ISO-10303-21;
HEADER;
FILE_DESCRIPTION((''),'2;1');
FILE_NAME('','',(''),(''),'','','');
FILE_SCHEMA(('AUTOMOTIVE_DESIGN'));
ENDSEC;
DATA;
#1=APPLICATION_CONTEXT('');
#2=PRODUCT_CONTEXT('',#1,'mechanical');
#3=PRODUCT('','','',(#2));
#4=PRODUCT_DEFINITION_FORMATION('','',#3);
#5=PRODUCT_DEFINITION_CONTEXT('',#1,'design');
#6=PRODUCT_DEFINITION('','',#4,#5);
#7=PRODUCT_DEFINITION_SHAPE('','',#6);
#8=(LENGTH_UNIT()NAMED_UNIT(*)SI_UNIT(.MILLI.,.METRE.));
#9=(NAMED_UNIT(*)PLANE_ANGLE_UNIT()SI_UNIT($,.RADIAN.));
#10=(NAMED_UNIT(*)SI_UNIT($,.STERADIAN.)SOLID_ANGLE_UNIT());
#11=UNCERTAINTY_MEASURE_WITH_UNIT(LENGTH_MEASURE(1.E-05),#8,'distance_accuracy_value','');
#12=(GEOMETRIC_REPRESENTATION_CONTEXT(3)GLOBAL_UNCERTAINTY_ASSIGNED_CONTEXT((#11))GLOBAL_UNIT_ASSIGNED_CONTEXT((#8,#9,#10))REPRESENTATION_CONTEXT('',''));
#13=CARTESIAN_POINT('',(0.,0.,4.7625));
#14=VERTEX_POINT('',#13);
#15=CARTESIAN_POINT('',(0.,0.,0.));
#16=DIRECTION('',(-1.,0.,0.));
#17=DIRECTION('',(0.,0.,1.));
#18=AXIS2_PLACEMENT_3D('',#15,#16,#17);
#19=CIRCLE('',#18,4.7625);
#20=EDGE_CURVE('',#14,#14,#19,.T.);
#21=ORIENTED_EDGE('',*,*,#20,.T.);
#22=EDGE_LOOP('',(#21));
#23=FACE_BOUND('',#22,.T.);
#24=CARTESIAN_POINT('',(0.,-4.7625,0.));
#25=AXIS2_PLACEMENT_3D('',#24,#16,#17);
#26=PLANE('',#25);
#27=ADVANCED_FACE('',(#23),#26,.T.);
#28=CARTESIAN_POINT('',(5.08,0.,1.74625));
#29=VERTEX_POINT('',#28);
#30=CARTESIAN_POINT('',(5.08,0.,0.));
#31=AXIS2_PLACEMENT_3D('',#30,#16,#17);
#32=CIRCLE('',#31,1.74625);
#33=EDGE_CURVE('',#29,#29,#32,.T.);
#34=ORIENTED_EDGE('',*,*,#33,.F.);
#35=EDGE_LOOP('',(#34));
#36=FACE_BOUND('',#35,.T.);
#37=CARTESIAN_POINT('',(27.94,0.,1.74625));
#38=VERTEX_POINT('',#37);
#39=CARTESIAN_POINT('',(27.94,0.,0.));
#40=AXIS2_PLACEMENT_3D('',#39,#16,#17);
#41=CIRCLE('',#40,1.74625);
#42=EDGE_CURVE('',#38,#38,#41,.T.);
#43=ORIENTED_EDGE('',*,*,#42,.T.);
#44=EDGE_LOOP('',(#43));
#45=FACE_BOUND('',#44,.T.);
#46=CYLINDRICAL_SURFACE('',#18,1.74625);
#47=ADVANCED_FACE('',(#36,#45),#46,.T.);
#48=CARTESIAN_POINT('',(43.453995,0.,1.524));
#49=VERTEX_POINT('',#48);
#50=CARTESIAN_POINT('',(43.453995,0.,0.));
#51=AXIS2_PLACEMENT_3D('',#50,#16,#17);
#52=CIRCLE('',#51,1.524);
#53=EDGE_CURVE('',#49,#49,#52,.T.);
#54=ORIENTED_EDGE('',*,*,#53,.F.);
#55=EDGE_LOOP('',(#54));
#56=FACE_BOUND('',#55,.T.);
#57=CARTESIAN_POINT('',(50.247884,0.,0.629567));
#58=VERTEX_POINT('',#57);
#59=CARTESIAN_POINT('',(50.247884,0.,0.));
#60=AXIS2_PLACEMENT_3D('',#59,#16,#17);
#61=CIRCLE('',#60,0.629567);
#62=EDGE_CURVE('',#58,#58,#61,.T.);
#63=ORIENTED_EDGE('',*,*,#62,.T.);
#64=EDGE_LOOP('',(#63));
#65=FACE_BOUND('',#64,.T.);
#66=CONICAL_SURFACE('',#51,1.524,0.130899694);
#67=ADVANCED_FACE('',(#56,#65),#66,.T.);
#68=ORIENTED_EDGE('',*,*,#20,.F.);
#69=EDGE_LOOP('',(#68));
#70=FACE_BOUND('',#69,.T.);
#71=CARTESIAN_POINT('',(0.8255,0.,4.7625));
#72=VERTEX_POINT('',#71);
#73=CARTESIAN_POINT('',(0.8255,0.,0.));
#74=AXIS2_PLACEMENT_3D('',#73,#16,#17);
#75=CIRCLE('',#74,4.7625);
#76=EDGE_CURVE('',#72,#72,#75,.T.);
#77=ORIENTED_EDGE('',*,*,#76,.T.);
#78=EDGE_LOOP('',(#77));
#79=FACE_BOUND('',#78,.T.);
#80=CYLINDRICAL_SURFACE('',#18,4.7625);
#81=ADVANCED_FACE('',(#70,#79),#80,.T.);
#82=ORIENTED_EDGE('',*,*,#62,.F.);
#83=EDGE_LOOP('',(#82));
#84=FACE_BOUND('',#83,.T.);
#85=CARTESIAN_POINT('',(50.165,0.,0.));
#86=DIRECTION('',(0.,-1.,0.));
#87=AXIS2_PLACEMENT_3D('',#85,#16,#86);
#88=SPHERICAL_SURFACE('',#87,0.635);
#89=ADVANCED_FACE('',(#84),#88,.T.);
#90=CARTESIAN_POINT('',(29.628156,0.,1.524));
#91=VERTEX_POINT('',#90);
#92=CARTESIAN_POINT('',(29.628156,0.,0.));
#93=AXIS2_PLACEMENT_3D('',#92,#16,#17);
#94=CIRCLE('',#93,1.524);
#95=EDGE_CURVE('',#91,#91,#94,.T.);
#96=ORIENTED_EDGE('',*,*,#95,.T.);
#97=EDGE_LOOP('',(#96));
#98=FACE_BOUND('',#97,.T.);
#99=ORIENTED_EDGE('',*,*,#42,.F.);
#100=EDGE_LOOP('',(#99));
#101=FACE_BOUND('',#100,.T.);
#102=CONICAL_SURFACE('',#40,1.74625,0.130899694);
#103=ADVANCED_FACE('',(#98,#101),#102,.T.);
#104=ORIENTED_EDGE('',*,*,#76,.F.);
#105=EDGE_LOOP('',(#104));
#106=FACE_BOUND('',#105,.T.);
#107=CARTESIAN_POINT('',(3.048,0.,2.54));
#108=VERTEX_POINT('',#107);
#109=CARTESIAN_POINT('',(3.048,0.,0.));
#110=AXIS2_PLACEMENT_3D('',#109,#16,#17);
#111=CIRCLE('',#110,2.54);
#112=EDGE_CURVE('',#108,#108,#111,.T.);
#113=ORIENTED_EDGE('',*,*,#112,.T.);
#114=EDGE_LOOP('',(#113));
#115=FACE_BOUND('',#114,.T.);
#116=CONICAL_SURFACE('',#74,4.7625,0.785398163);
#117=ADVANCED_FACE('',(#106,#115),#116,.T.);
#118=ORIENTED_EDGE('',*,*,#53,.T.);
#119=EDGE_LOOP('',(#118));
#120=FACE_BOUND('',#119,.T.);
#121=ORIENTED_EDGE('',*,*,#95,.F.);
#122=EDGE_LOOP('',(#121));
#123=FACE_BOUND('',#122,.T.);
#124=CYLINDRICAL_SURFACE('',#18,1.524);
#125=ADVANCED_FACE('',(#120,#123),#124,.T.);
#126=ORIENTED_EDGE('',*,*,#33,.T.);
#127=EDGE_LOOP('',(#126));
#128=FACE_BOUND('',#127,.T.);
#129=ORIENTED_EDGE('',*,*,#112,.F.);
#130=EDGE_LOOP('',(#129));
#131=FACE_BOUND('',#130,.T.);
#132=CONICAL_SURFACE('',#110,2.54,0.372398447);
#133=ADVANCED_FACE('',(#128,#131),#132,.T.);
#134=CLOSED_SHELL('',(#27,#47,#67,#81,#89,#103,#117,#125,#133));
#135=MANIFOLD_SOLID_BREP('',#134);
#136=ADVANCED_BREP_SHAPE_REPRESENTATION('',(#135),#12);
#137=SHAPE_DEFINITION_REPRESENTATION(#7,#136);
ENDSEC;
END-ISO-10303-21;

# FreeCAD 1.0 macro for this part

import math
import FreeCAD as App
import Part
import Sketcher
Q = App.Units.Quantity

doc = App.newDocument("Part")
body = doc.addObject("PartDesign::Body", "Body")

# Sketch on XY plane
sketch1 = body.newObject("Sketcher::SketchObject", "Sketch")
sketch1.AttachmentSupport = (doc.getObject("XY_Plane"), [""])
sketch1.MapMode = "FlatFace"
sketch1.addGeometry([
    Part.LineSegment(App.Vector(0, 0, 0), App.Vector(0, -4.8, 0)),  # 0
    Part.LineSegment(App.Vector(0, -4.8, 0), App.Vector(0.8, -4.8, 0)),  # 1
    Part.LineSegment(App.Vector(0.8, -4.8, 0), App.Vector(3, -2.5, 0)),  # 2
    Part.LineSegment(App.Vector(3, -2.5, 0), App.Vector(5.1, -1.7, 0)),  # 3
    Part.LineSegment(App.Vector(5.1, -1.7, 0), App.Vector(27.9, -1.7, 0)),  # 4
    Part.LineSegment(App.Vector(27.9, -1.7, 0), App.Vector(29.6, -1.5, 0)),  # 5
    Part.LineSegment(App.Vector(29.6, -1.5, 0), App.Vector(43.5, -1.5, 0)),  # 6
    Part.LineSegment(App.Vector(43.5, -1.5, 0), App.Vector(50.2, -0.6, 0)),  # 7
    Part.ArcOfCircle(Part.Circle(App.Vector(50.2, 0, 0), App.Vector(0, 0, 1), 0.6), math.radians(-83), math.radians(0)),  # 8
    Part.LineSegment(App.Vector(50.8, 0, 0), App.Vector(0, 0, 0)),  # 9
], False)
sketch1.addConstraint([
    Sketcher.Constraint("Coincident", 0, 2, 1, 1),
    Sketcher.Constraint("Coincident", 1, 2, 2, 1),
    Sketcher.Constraint("Coincident", 2, 2, 3, 1),
    Sketcher.Constraint("Coincident", 3, 2, 4, 1),
    Sketcher.Constraint("Coincident", 4, 2, 5, 1),
    Sketcher.Constraint("Coincident", 5, 2, 6, 1),
    Sketcher.Constraint("Coincident", 6, 2, 7, 1),
    Sketcher.Constraint("Tangent", 7, 2, 8, 1),
    Sketcher.Constraint("Coincident", 8, 2, 9, 1),
    Sketcher.Constraint("Coincident", 9, 2, 0, 1),
    Sketcher.Constraint("Vertical", 0),
    Sketcher.Constraint("Horizontal", 1),
    Sketcher.Constraint("Horizontal", 4),
    Sketcher.Constraint("Horizontal", 6),
    Sketcher.Constraint("Horizontal", 9),
    Sketcher.Constraint("Coincident", 9, 2, -1, 1),
    Sketcher.Constraint("PointOnObject", 8, 3, -1),
    Sketcher.Constraint("Parallel", 5, 7),
    Sketcher.Constraint("DistanceX", 9, 2, 9, 1, Q("2 in")),
    Sketcher.Constraint("DistanceX", 4, 1, 4, 2, Q("0.9 in")),
    Sketcher.Constraint("Angle", 2, Q("45 deg")),
    Sketcher.Constraint("Radius", 8, Q("0.025 in")),
    Sketcher.Constraint("DistanceY", 2, 2, -1, 1, Q("0.1 in")),
    Sketcher.Constraint("DistanceX", -1, 1, 3, 2, Q("0.2 in")),
    Sketcher.Constraint("Angle", 5, Q("7.5 deg")),
    Sketcher.Constraint("DistanceY", 0, 2, 0, 1, Q("0.1875 in")),
    Sketcher.Constraint("DistanceX", -1, 1, 2, 2, Q("0.12 in")),
    Sketcher.Constraint("DistanceY", 5, 2, -1, 1, Q("0.06 in")),
    Sketcher.Constraint("DistanceY", 2, 2, 3, 2, Q("0.03125 in")),
])
revolution = body.newObject("PartDesign::Revolution", "Revolution")
revolution.Profile = sketch1
revolution.ReferenceAxis = (sketch1, ["H_Axis"])
revolution.Angle = 360

doc.recompute()
